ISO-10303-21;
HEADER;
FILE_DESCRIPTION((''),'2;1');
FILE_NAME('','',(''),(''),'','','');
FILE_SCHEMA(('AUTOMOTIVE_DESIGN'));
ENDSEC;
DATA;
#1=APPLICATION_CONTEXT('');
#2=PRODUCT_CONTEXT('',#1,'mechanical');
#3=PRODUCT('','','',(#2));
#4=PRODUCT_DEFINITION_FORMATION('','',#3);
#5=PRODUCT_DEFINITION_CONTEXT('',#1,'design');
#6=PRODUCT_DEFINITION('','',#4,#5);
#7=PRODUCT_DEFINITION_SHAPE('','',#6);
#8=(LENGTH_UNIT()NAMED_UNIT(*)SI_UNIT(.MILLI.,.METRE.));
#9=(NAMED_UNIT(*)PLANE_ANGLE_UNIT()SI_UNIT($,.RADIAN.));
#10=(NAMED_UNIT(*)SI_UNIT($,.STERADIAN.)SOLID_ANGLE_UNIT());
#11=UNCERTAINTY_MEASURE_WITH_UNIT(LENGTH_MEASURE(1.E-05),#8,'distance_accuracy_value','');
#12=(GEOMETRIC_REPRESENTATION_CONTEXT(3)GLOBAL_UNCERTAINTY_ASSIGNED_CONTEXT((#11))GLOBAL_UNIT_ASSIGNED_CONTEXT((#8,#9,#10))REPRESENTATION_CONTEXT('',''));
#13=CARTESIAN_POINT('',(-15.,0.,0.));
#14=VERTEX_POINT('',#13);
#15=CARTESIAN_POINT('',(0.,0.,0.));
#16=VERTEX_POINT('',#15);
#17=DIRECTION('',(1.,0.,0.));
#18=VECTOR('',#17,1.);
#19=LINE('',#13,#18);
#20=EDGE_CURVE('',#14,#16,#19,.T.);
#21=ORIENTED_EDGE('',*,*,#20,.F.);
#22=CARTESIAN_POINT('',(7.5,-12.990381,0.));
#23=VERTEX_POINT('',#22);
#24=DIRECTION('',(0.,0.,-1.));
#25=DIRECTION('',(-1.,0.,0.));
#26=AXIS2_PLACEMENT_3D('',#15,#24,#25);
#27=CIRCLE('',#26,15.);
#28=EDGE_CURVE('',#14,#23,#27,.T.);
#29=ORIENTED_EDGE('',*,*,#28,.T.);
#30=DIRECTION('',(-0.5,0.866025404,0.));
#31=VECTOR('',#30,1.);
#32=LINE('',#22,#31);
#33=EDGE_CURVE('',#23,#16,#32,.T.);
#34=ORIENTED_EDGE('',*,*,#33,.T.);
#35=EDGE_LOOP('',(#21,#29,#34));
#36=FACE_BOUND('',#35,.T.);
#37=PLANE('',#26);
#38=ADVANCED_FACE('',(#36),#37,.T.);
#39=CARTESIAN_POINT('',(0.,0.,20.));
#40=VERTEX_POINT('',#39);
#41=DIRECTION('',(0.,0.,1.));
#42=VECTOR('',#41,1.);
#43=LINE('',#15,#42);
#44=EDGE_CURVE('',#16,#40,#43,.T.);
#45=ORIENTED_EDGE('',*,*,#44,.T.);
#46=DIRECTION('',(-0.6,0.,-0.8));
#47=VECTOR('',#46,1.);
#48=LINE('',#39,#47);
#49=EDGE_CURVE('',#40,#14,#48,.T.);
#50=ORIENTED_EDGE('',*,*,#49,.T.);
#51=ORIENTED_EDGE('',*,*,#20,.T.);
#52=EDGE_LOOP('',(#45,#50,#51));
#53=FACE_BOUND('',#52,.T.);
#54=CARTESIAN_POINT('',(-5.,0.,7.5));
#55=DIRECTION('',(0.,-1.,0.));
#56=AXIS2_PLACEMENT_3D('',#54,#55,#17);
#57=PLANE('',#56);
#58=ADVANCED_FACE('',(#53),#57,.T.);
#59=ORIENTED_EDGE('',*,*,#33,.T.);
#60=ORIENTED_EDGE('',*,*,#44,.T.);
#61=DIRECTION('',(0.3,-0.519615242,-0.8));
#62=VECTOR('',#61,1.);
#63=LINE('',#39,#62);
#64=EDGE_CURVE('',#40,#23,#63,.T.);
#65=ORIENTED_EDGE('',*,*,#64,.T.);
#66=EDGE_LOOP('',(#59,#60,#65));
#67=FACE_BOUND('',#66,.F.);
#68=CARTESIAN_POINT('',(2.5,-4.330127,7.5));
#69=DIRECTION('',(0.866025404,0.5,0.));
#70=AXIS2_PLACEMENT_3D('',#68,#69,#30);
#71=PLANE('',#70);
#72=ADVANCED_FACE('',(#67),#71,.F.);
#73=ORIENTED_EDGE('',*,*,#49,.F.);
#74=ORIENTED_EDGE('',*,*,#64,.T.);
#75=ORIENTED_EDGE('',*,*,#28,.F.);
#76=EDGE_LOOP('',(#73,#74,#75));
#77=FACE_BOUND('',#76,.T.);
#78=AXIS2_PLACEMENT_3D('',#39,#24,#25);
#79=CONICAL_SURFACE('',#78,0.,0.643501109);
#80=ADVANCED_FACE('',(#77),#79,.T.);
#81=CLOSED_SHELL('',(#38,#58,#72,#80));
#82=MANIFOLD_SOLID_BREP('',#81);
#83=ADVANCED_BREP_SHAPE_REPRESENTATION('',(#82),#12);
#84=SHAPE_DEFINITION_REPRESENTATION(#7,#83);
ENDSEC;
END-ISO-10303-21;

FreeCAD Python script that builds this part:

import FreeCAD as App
import Part
import Sketcher

V = App.Vector
Q = App.Units.Quantity


def add_polygon(sketch, points):
    """Adds a closed chain of lines whose ends are joined by coincident constraints."""
    first, n = sketch.GeometryCount, len(points)
    for a, b in zip(points, points[1:] + points[:1]):
        sketch.addGeometry(Part.LineSegment(App.Vector(*a, 0), App.Vector(*b, 0)), False)
    for i in range(n):
        sketch.addConstraint(Sketcher.Constraint("Coincident", first + i, 2, first + (i + 1) % n, 1))

doc = App.newDocument("Part")
body = doc.addObject("PartDesign::Body", "Body")

# Sketch on XZ plane
sketch1 = body.newObject("Sketcher::SketchObject", "Sketch")
sketch1.AttachmentSupport = (doc.getObject("XZ_Plane"), [""])
sketch1.MapMode = "FlatFace"
add_polygon(sketch1, [(-15, 0), (0, 0), (0, 20)])  # lines 0-2
sketch1.addConstraint(Sketcher.Constraint("Horizontal", 0))
sketch1.addConstraint(Sketcher.Constraint("Vertical", 1))
sketch1.addConstraint(Sketcher.Constraint("Coincident", 0, 2, -1, 1))
sketch1.addConstraint(Sketcher.Constraint("DistanceX", 0, 1, 0, 2, Q("15 mm")))
sketch1.addConstraint(Sketcher.Constraint("DistanceY", 1, 1, 1, 2, Q("20 mm")))
revolution = body.newObject("PartDesign::Revolution", "Revolution")
revolution.Profile = sketch1
revolution.ReferenceAxis = (sketch1, ["V_Axis"])
revolution.Angle = 240
revolution.Reversed = True

doc.recompute()
